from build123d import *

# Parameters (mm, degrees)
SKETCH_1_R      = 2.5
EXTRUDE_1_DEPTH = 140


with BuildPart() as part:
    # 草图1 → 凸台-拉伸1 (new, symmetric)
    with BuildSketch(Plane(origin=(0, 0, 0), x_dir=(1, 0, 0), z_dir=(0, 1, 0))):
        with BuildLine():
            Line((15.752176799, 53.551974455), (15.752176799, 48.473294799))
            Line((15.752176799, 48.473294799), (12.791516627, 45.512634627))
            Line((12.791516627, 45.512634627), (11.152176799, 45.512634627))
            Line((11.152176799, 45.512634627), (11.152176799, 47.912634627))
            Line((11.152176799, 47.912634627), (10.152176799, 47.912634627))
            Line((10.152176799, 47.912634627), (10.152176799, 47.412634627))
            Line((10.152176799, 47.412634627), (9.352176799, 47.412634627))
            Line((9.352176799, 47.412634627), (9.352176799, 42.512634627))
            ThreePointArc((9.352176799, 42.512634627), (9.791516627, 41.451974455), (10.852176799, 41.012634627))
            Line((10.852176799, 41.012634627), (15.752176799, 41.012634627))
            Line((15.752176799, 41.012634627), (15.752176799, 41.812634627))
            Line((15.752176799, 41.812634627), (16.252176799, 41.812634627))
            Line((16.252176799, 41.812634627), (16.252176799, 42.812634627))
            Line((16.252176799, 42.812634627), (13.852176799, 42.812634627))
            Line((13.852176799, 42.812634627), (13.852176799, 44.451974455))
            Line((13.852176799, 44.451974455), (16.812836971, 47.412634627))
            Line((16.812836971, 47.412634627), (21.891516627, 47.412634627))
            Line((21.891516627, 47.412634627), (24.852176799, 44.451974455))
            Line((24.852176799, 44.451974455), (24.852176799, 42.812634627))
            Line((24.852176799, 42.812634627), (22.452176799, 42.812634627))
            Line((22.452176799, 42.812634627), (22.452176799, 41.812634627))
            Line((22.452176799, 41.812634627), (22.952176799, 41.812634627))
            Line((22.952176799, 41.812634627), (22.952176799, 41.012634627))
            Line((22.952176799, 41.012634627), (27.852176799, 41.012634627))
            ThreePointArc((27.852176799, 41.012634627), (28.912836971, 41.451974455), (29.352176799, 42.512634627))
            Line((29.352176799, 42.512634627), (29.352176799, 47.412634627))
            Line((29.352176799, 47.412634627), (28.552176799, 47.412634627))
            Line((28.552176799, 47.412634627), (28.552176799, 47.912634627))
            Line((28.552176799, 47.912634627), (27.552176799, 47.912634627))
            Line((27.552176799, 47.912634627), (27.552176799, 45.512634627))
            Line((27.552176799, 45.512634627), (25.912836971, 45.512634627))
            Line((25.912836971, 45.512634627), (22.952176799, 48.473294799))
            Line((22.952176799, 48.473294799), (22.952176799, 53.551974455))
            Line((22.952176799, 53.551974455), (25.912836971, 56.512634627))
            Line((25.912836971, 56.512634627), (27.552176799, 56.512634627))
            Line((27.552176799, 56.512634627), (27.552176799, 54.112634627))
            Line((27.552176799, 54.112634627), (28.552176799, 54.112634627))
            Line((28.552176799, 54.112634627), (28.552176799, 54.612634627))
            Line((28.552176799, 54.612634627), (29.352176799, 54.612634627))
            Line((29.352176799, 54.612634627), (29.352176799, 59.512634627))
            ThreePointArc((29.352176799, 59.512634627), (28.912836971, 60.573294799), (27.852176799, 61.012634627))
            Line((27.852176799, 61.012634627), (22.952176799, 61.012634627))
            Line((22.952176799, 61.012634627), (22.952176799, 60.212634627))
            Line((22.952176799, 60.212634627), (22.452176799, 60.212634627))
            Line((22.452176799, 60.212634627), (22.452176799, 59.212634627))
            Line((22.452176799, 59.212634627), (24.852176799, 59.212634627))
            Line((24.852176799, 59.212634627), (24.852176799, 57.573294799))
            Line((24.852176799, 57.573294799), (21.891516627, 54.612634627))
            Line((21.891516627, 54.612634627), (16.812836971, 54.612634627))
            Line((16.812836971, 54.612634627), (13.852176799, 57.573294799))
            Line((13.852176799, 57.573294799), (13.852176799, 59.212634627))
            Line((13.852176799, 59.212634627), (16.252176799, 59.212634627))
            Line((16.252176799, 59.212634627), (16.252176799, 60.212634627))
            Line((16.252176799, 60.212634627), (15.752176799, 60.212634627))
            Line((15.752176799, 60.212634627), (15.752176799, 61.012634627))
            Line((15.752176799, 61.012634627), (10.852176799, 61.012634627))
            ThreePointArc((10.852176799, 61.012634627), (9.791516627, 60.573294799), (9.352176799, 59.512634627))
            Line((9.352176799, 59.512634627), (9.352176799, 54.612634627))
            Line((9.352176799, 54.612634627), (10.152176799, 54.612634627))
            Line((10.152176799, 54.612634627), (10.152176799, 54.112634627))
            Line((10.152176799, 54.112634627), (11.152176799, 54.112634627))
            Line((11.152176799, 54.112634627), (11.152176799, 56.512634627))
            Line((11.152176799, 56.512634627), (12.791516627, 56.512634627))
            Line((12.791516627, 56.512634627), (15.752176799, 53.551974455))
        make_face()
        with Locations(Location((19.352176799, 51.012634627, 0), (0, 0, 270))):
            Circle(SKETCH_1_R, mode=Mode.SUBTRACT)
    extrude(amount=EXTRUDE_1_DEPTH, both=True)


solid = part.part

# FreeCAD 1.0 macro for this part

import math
import FreeCAD as App
import Part
import Sketcher
from FreeCAD import Vector
Q = App.Units.Quantity

doc = App.newDocument("Part")
body = doc.addObject("PartDesign::Body", "Body")

# Sketch on XZ plane
sketch1 = doc.addObject("Sketcher::SketchObject", "Sketch")
body.addObject(sketch1)
sketch1.AttachmentSupport = (doc.XZ_Plane, [""])
sketch1.MapMode = "FlatFace"
sketch1.addGeometry([
    Part.LineSegment(Vector(15.8, -53.6, 0), Vector(15.8, -48.5, 0)),  # 0
    Part.LineSegment(Vector(15.8, -48.5, 0), Vector(12.8, -45.5, 0)),  # 1
    Part.LineSegment(Vector(12.8, -45.5, 0), Vector(11.2, -45.5, 0)),  # 2
    Part.LineSegment(Vector(11.2, -45.5, 0), Vector(11.2, -47.9, 0)),  # 3
    Part.LineSegment(Vector(11.2, -47.9, 0), Vector(10.2, -47.9, 0)),  # 4
    Part.LineSegment(Vector(10.2, -47.9, 0), Vector(10.2, -47.4, 0)),  # 5
    Part.LineSegment(Vector(10.2, -47.4, 0), Vector(9.4, -47.4, 0)),  # 6
    Part.LineSegment(Vector(9.4, -47.4, 0), Vector(9.4, -42.5, 0)),  # 7
    Part.ArcOfCircle(Part.Circle(Vector(10.9, -42.5, 0), Vector(0, 0, 1), 1.5), math.radians(90), math.radians(180)),  # 8
    Part.LineSegment(Vector(10.9, -41, 0), Vector(15.8, -41, 0)),  # 9
    Part.LineSegment(Vector(15.8, -41, 0), Vector(15.8, -41.8, 0)),  # 10
    Part.LineSegment(Vector(15.8, -41.8, 0), Vector(16.3, -41.8, 0)),  # 11
    Part.LineSegment(Vector(16.3, -41.8, 0), Vector(16.3, -42.8, 0)),  # 12
    Part.LineSegment(Vector(16.3, -42.8, 0), Vector(13.9, -42.8, 0)),  # 13
    Part.LineSegment(Vector(13.9, -42.8, 0), Vector(13.9, -44.5, 0)),  # 14
    Part.LineSegment(Vector(13.9, -44.5, 0), Vector(16.8, -47.4, 0)),  # 15
    Part.LineSegment(Vector(16.8, -47.4, 0), Vector(21.9, -47.4, 0)),  # 16
    Part.LineSegment(Vector(21.9, -47.4, 0), Vector(24.9, -44.5, 0)),  # 17
    Part.LineSegment(Vector(24.9, -44.5, 0), Vector(24.9, -42.8, 0)),  # 18
    Part.LineSegment(Vector(24.9, -42.8, 0), Vector(22.5, -42.8, 0)),  # 19
    Part.LineSegment(Vector(22.5, -42.8, 0), Vector(22.5, -41.8, 0)),  # 20
    Part.LineSegment(Vector(22.5, -41.8, 0), Vector(23, -41.8, 0)),  # 21
    Part.LineSegment(Vector(23, -41.8, 0), Vector(23, -41, 0)),  # 22
    Part.LineSegment(Vector(23, -41, 0), Vector(27.9, -41, 0)),  # 23
    Part.ArcOfCircle(Part.Circle(Vector(27.9, -42.5, 0), Vector(0, 0, 1), 1.5), math.radians(0), math.radians(90)),  # 24
    Part.LineSegment(Vector(29.4, -42.5, 0), Vector(29.4, -47.4, 0)),  # 25
    Part.LineSegment(Vector(29.4, -47.4, 0), Vector(28.6, -47.4, 0)),  # 26
    Part.LineSegment(Vector(28.6, -47.4, 0), Vector(28.6, -47.9, 0)),  # 27
    Part.LineSegment(Vector(28.6, -47.9, 0), Vector(27.6, -47.9, 0)),  # 28
    Part.LineSegment(Vector(27.6, -47.9, 0), Vector(27.6, -45.5, 0)),  # 29
    Part.LineSegment(Vector(27.6, -45.5, 0), Vector(25.9, -45.5, 0)),  # 30
    Part.LineSegment(Vector(25.9, -45.5, 0), Vector(23, -48.5, 0)),  # 31
    Part.LineSegment(Vector(23, -48.5, 0), Vector(23, -53.6, 0)),  # 32
    Part.LineSegment(Vector(23, -53.6, 0), Vector(25.9, -56.5, 0)),  # 33
    Part.LineSegment(Vector(25.9, -56.5, 0), Vector(27.6, -56.5, 0)),  # 34
    Part.LineSegment(Vector(27.6, -56.5, 0), Vector(27.6, -54.1, 0)),  # 35
    Part.LineSegment(Vector(27.6, -54.1, 0), Vector(28.6, -54.1, 0)),  # 36
    Part.LineSegment(Vector(28.6, -54.1, 0), Vector(28.6, -54.6, 0)),  # 37
    Part.LineSegment(Vector(28.6, -54.6, 0), Vector(29.4, -54.6, 0)),  # 38
    Part.LineSegment(Vector(29.4, -54.6, 0), Vector(29.4, -59.5, 0)),  # 39
    Part.ArcOfCircle(Part.Circle(Vector(27.9, -59.5, 0), Vector(0, 0, 1), 1.5), math.radians(-90), math.radians(0)),  # 40
    Part.LineSegment(Vector(27.9, -61, 0), Vector(23, -61, 0)),  # 41
    Part.LineSegment(Vector(23, -61, 0), Vector(23, -60.2, 0)),  # 42
    Part.LineSegment(Vector(23, -60.2, 0), Vector(22.5, -60.2, 0)),  # 43
    Part.LineSegment(Vector(22.5, -60.2, 0), Vector(22.5, -59.2, 0)),  # 44
    Part.LineSegment(Vector(22.5, -59.2, 0), Vector(24.9, -59.2, 0)),  # 45
    Part.LineSegment(Vector(24.9, -59.2, 0), Vector(24.9, -57.6, 0)),  # 46
    Part.LineSegment(Vector(24.9, -57.6, 0), Vector(21.9, -54.6, 0)),  # 47
    Part.LineSegment(Vector(21.9, -54.6, 0), Vector(16.8, -54.6, 0)),  # 48
    Part.LineSegment(Vector(16.8, -54.6, 0), Vector(13.9, -57.6, 0)),  # 49
    Part.LineSegment(Vector(13.9, -57.6, 0), Vector(13.9, -59.2, 0)),  # 50
    Part.LineSegment(Vector(13.9, -59.2, 0), Vector(16.3, -59.2, 0)),  # 51
    Part.LineSegment(Vector(16.3, -59.2, 0), Vector(16.3, -60.2, 0)),  # 52
    Part.LineSegment(Vector(16.3, -60.2, 0), Vector(15.8, -60.2, 0)),  # 53
    Part.LineSegment(Vector(15.8, -60.2, 0), Vector(15.8, -61, 0)),  # 54
    Part.LineSegment(Vector(15.8, -61, 0), Vector(10.9, -61, 0)),  # 55
    Part.ArcOfCircle(Part.Circle(Vector(10.9, -59.5, 0), Vector(0, 0, 1), 1.5), math.radians(180), math.radians(270)),  # 56
    Part.LineSegment(Vector(9.4, -59.5, 0), Vector(9.4, -54.6, 0)),  # 57
    Part.LineSegment(Vector(9.4, -54.6, 0), Vector(10.2, -54.6, 0)),  # 58
    Part.LineSegment(Vector(10.2, -54.6, 0), Vector(10.2, -54.1, 0)),  # 59
    Part.LineSegment(Vector(10.2, -54.1, 0), Vector(11.2, -54.1, 0)),  # 60
    Part.LineSegment(Vector(11.2, -54.1, 0), Vector(11.2, -56.5, 0)),  # 61
    Part.LineSegment(Vector(11.2, -56.5, 0), Vector(12.8, -56.5, 0)),  # 62
    Part.LineSegment(Vector(12.8, -56.5, 0), Vector(15.8, -53.6, 0)),  # 63
    Part.Circle(Vector(19.4, -51, 0), Vector(0, 0, 1), 2.5),  # 64
], False)
sketch1.addConstraint([
    Sketcher.Constraint("Coincident", 0, 2, 1, 1),
    Sketcher.Constraint("Coincident", 1, 2, 2, 1),
    Sketcher.Constraint("Coincident", 2, 2, 3, 1),
    Sketcher.Constraint("Coincident", 3, 2, 4, 1),
    Sketcher.Constraint("Coincident", 4, 2, 5, 1),
    Sketcher.Constraint("Coincident", 5, 2, 6, 1),
    Sketcher.Constraint("Coincident", 6, 2, 7, 1),
    Sketcher.Constraint("Tangent", 7, 2, 8, 2),
    Sketcher.Constraint("Tangent", 8, 1, 9, 1),
    Sketcher.Constraint("Coincident", 9, 2, 10, 1),
    Sketcher.Constraint("Coincident", 10, 2, 11, 1),
    Sketcher.Constraint("Coincident", 11, 2, 12, 1),
    Sketcher.Constraint("Coincident", 12, 2, 13, 1),
    Sketcher.Constraint("Coincident", 13, 2, 14, 1),
    Sketcher.Constraint("Coincident", 14, 2, 15, 1),
    Sketcher.Constraint("Coincident", 15, 2, 16, 1),
    Sketcher.Constraint("Coincident", 16, 2, 17, 1),
    Sketcher.Constraint("Coincident", 17, 2, 18, 1),
    Sketcher.Constraint("Coincident", 18, 2, 19, 1),
    Sketcher.Constraint("Coincident", 19, 2, 20, 1),
    Sketcher.Constraint("Coincident", 20, 2, 21, 1),
    Sketcher.Constraint("Coincident", 21, 2, 22, 1),
    Sketcher.Constraint("Coincident", 22, 2, 23, 1),
    Sketcher.Constraint("Tangent", 23, 2, 24, 2),
    Sketcher.Constraint("Tangent", 24, 1, 25, 1),
    Sketcher.Constraint("Coincident", 25, 2, 26, 1),
    Sketcher.Constraint("Coincident", 26, 2, 27, 1),
    Sketcher.Constraint("Coincident", 27, 2, 28, 1),
    Sketcher.Constraint("Coincident", 28, 2, 29, 1),
    Sketcher.Constraint("Coincident", 29, 2, 30, 1),
    Sketcher.Constraint("Coincident", 30, 2, 31, 1),
    Sketcher.Constraint("Coincident", 31, 2, 32, 1),
    Sketcher.Constraint("Coincident", 32, 2, 33, 1),
    Sketcher.Constraint("Coincident", 33, 2, 34, 1),
    Sketcher.Constraint("Coincident", 34, 2, 35, 1),
    Sketcher.Constraint("Coincident", 35, 2, 36, 1),
    Sketcher.Constraint("Coincident", 36, 2, 37, 1),
    Sketcher.Constraint("Coincident", 37, 2, 38, 1),
    Sketcher.Constraint("Coincident", 38, 2, 39, 1),
    Sketcher.Constraint("Tangent", 39, 2, 40, 2),
    Sketcher.Constraint("Tangent", 40, 1, 41, 1),
    Sketcher.Constraint("Coincident", 41, 2, 42, 1),
    Sketcher.Constraint("Coincident", 42, 2, 43, 1),
    Sketcher.Constraint("Coincident", 43, 2, 44, 1),
    Sketcher.Constraint("Coincident", 44, 2, 45, 1),
    Sketcher.Constraint("Coincident", 45, 2, 46, 1),
    Sketcher.Constraint("Coincident", 46, 2, 47, 1),
    Sketcher.Constraint("Coincident", 47, 2, 48, 1),
    Sketcher.Constraint("Coincident", 48, 2, 49, 1),
    Sketcher.Constraint("Coincident", 49, 2, 50, 1),
    Sketcher.Constraint("Coincident", 50, 2, 51, 1),
    Sketcher.Constraint("Coincident", 51, 2, 52, 1),
    Sketcher.Constraint("Coincident", 52, 2, 53, 1),
    Sketcher.Constraint("Coincident", 53, 2, 54, 1),
    Sketcher.Constraint("Coincident", 54, 2, 55, 1),
    Sketcher.Constraint("Tangent", 55, 2, 56, 2),
    Sketcher.Constraint("Tangent", 56, 1, 57, 1),
    Sketcher.Constraint("Coincident", 57, 2, 58, 1),
    Sketcher.Constraint("Coincident", 58, 2, 59, 1),
    Sketcher.Constraint("Coincident", 59, 2, 60, 1),
    Sketcher.Constraint("Coincident", 60, 2, 61, 1),
    Sketcher.Constraint("Coincident", 61, 2, 62, 1),
    Sketcher.Constraint("Coincident", 62, 2, 63, 1),
    Sketcher.Constraint("Coincident", 63, 2, 0, 1),
    Sketcher.Constraint("Vertical", 0),
    Sketcher.Constraint("Horizontal", 2),
    Sketcher.Constraint("Vertical", 3),
    Sketcher.Constraint("Horizontal", 4),
    Sketcher.Constraint("Vertical", 5),
    Sketcher.Constraint("Horizontal", 6),
    Sketcher.Constraint("Vertical", 7),
    Sketcher.Constraint("Horizontal", 9),
    Sketcher.Constraint("Vertical", 10),
    Sketcher.Constraint("Horizontal", 11),
    Sketcher.Constraint("Vertical", 12),
    Sketcher.Constraint("Horizontal", 13),
    Sketcher.Constraint("Vertical", 14),
    Sketcher.Constraint("Horizontal", 16),
    Sketcher.Constraint("Vertical", 18),
    Sketcher.Constraint("Horizontal", 19),
    Sketcher.Constraint("Vertical", 20),
    Sketcher.Constraint("Horizontal", 21),
    Sketcher.Constraint("Vertical", 22),
    Sketcher.Constraint("Horizontal", 23),
    Sketcher.Constraint("Vertical", 25),
    Sketcher.Constraint("Horizontal", 26),
    Sketcher.Constraint("Vertical", 27),
    Sketcher.Constraint("Horizontal", 28),
    Sketcher.Constraint("Vertical", 29),
    Sketcher.Constraint("Horizontal", 30),
    Sketcher.Constraint("Vertical", 32),
    Sketcher.Constraint("Horizontal", 34),
    Sketcher.Constraint("Vertical", 35),
    Sketcher.Constraint("Horizontal", 36),
    Sketcher.Constraint("Vertical", 37),
    Sketcher.Constraint("Horizontal", 38),
    Sketcher.Constraint("Vertical", 39),
    Sketcher.Constraint("Horizontal", 41),
    Sketcher.Constraint("Vertical", 42),
    Sketcher.Constraint("Horizontal", 43),
    Sketcher.Constraint("Vertical", 44),
    Sketcher.Constraint("Horizontal", 45),
    Sketcher.Constraint("Vertical", 46),
    Sketcher.Constraint("Horizontal", 48),
    Sketcher.Constraint("Vertical", 50),
    Sketcher.Constraint("Horizontal", 51),
    Sketcher.Constraint("Vertical", 52),
    Sketcher.Constraint("Horizontal", 53),
    Sketcher.Constraint("Vertical", 54),
    Sketcher.Constraint("Horizontal", 55),
    Sketcher.Constraint("Vertical", 57),
    Sketcher.Constraint("Horizontal", 58),
    Sketcher.Constraint("Vertical", 59),
    Sketcher.Constraint("Horizontal", 60),
    Sketcher.Constraint("Vertical", 61),
    Sketcher.Constraint("Horizontal", 62),
    Sketcher.Constraint("Equal", 8, 24),
    Sketcher.Constraint("Equal", 24, 40),
    Sketcher.Constraint("Equal", 40, 56),
    Sketcher.Constraint("Parallel", 1, 15),
    Sketcher.Constraint("Perpendicular", 15, 17),
    Sketcher.Constraint("Parallel", 17, 31),
    Sketcher.Constraint("Perpendicular", 31, 33),
    Sketcher.Constraint("Parallel", 33, 47),
    Sketcher.Constraint("Perpendicular", 47, 49),
    Sketcher.Constraint("Parallel", 49, 63),
    Sketcher.Constraint("Horizontal", 8, 3, 24, 3),
    Sketcher.Constraint("Horizontal", 40, 3, 56, 3),
    Sketcher.Constraint("Horizontal", 6, 2, 15, 2),
    Sketcher.Constraint("Horizontal", 14, 2, 17, 2),
    Sketcher.Constraint("Horizontal", 13, 2, 18, 2),
    Sketcher.Constraint("Horizontal", 11, 2, 20, 2),
    Sketcher.Constraint("Horizontal", 16, 2, 25, 2),
    Sketcher.Constraint("Horizontal", 4, 2, 27, 2),
    Sketcher.Constraint("Horizontal", 2, 2, 29, 2),
    Sketcher.Constraint("Horizontal", 0, 2, 31, 2),
    Sketcher.Constraint("Horizontal", 38, 2, 47, 2),
    Sketcher.Constraint("Horizontal", 46, 2, 49, 2),
    Sketcher.Constraint("Horizontal", 45, 2, 50, 2),
    Sketcher.Constraint("Horizontal", 43, 2, 52, 2),
    Sketcher.Constraint("Horizontal", 48, 2, 57, 2),
    Sketcher.Constraint("Horizontal", 36, 2, 59, 2),
    Sketcher.Constraint("Horizontal", 34, 2, 61, 2),
    Sketcher.Constraint("Horizontal", 32, 2, 63, 2),
    Sketcher.Constraint("Vertical", 24, 3, 40, 3),
    Sketcher.Constraint("Vertical", 8, 3, 56, 3),
    Sketcher.Constraint("Vertical", 0, 2, 9, 2),
    Sketcher.Constraint("Vertical", 22, 2, 31, 2),
    Sketcher.Constraint("Vertical", 30, 2, 33, 2),
    Sketcher.Constraint("Vertical", 29, 2, 34, 2),
    Sketcher.Constraint("Vertical", 27, 2, 36, 2),
    Sketcher.Constraint("Vertical", 32, 2, 41, 2),
    Sketcher.Constraint("Vertical", 20, 2, 43, 2),
    Sketcher.Constraint("Vertical", 18, 2, 45, 2),
    Sketcher.Constraint("Vertical", 16, 2, 47, 2),
    Sketcher.Constraint("Vertical", 15, 2, 48, 2),
    Sketcher.Constraint("Vertical", 14, 2, 49, 2),
    Sketcher.Constraint("Vertical", 12, 2, 51, 2),
    Sketcher.Constraint("Vertical", 10, 2, 53, 2),
    Sketcher.Constraint("Vertical", 5, 2, 58, 2),
    Sketcher.Constraint("Vertical", 3, 2, 60, 2),
    Sketcher.Constraint("Equal", 13, 19),
    Sketcher.Constraint("Equal", 11, 21),
    Sketcher.Constraint("Equal", 9, 23),
    Sketcher.Constraint("Equal", 6, 26),
    Sketcher.Constraint("Equal", 4, 28),
    Sketcher.Constraint("Equal", 48, 0),
    Sketcher.Constraint("Equal", 51, 3),
    Sketcher.Constraint("Equal", 53, 5),
    Sketcher.Constraint("Equal", 55, 7),
    Sketcher.Constraint("Equal", 58, 10),
    Sketcher.Constraint("Equal", 60, 12),
    Sketcher.Constraint("Equal", 62, 14),
    Sketcher.Constraint("Equal", 29, 35),
    Sketcher.Constraint("Equal", 27, 37),
    Sketcher.Constraint("Equal", 25, 39),
    Sketcher.Constraint("Equal", 22, 42),
    Sketcher.Constraint("Equal", 20, 44),
    Sketcher.Constraint("Diameter", 64, Q("5 mm")),
    Sketcher.Constraint("Radius", 8, Q("1.5 mm")),
    Sketcher.Constraint("DistanceX", 4, 2, 4, 1, Q("1 mm")),
    Sketcher.Constraint("DistanceX", 6, 2, 6, 1, Q("0.8 mm")),
    Sketcher.Constraint("DistanceX", 9, 1, 9, 2, Q("4.9 mm")),
    Sketcher.Constraint("DistanceX", 11, 1, 11, 2, Q("0.5 mm")),
    Sketcher.Constraint("DistanceX", 13, 2, 13, 1, Q("2.4 mm")),
    Sketcher.Constraint("DistanceX", 2, 2, 2, 1, Q("1.63934 mm")),
    Sketcher.Constraint("DistanceX", 16, 1, 16, 2, Q("5.07868 mm")),
    Sketcher.Constraint("DistanceX", -1, 1, 8, 3, Q("10.852177 mm")),
    Sketcher.Constraint("DistanceY", 8, 3, -1, 1, Q("42.512635 mm")),
    Sketcher.Constraint("DistanceX", -1, 1, 64, 3, Q("19.352177 mm")),
    Sketcher.Constraint("DistanceY", 64, 3, -1, 1, Q("51.012635 mm")),
])
pad1 = doc.addObject("PartDesign::Pad", "Pad")
body.addObject(pad1)
pad1.Profile = sketch1
pad1.Length = 280
pad1.Midplane = True

doc.recompute()
